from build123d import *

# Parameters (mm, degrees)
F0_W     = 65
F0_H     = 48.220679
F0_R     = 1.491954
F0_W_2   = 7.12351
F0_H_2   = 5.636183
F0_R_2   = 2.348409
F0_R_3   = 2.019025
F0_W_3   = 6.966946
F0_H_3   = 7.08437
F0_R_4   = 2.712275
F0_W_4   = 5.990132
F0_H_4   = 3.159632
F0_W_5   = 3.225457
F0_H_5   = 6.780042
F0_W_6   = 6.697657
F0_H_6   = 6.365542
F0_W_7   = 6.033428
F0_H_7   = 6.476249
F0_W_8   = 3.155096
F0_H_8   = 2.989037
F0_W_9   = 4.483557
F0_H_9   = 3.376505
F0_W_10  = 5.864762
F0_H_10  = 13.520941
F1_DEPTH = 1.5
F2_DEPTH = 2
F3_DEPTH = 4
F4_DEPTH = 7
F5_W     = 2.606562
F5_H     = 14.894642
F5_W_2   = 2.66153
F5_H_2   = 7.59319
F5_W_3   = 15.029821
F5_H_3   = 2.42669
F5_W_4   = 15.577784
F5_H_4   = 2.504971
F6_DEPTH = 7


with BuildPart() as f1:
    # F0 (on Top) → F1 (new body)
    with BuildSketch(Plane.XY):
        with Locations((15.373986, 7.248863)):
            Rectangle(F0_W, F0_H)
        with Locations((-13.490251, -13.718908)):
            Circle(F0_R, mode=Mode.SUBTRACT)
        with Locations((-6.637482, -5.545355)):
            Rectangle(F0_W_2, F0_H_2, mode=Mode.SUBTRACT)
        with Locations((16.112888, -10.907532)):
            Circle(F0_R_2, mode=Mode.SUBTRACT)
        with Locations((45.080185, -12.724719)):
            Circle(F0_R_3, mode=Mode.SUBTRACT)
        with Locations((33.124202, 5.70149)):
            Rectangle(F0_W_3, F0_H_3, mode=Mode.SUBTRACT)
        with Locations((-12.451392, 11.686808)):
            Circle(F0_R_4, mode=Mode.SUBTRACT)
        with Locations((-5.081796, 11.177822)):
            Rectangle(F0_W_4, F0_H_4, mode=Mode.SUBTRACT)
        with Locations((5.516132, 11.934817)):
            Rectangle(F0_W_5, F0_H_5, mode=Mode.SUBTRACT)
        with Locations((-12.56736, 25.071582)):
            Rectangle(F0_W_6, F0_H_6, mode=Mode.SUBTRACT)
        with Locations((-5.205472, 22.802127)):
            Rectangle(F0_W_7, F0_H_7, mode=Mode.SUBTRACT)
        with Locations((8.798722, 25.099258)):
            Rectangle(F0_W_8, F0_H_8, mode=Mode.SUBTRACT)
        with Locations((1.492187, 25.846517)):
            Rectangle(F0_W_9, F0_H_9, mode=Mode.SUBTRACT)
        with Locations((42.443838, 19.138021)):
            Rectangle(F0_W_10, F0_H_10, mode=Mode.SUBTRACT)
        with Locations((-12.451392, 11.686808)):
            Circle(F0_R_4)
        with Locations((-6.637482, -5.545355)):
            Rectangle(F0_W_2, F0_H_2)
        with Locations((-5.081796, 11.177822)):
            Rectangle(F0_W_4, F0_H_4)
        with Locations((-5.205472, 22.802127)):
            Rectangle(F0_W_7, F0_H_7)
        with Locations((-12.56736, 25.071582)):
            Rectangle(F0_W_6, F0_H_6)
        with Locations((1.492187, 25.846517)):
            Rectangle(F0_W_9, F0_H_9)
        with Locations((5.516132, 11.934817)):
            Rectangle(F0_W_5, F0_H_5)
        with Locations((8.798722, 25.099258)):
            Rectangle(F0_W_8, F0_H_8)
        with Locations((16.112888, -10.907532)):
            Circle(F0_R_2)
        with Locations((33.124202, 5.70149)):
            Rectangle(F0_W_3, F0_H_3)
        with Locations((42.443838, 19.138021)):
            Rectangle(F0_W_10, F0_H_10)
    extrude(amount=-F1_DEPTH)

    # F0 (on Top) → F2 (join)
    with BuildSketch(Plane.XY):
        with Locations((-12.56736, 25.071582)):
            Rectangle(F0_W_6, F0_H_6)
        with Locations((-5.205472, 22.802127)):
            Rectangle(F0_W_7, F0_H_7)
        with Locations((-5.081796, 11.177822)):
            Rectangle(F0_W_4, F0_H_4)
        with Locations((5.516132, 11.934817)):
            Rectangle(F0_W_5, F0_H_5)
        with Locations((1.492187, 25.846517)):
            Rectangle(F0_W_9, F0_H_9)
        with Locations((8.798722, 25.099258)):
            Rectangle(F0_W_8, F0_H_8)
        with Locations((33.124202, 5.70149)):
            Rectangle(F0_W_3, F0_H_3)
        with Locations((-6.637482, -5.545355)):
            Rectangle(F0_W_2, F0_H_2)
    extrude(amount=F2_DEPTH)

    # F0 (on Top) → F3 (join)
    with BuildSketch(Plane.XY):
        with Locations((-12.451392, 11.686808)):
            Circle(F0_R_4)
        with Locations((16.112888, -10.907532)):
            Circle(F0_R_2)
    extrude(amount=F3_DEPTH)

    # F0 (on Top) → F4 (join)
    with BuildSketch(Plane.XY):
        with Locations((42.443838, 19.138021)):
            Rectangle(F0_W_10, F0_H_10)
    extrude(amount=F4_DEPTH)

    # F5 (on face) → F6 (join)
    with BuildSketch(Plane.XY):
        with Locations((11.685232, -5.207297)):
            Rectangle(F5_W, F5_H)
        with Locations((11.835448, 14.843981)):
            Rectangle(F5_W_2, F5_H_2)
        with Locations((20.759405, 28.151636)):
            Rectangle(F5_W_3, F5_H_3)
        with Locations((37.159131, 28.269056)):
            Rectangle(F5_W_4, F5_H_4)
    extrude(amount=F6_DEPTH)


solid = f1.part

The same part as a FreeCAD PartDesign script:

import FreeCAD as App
import Part
import Sketcher

V = App.Vector

doc = App.newDocument("Part")
params = doc.addObject("Spreadsheet::Sheet", "Params")
for row, (alias, value) in enumerate([
    ("sketch1_width", "65 mm"),
    ("pad1_length", "1.5 mm"),
    ("pad2_length", "2 mm"),
    ("pad3_length", "4 mm"),
    ("pad4_length", "7 mm"),
    ("pad5_length", "7 mm"),
], start=1):
    params.set(f"A{row}", alias)
    params.set(f"B{row}", "=" + value)
    params.setAlias(f"B{row}", alias)

body = doc.addObject("PartDesign::Body", "Body")

# Sketch on XY plane
sketch1 = doc.addObject("Sketcher::SketchObject", "Sketch")
body.addObject(sketch1)
sketch1.AttachmentSupport = (doc.XY_Plane, [""])
sketch1.MapMode = "FlatFace"
sketch1.addGeometry([
    Part.LineSegment(V(-17.1, 31.4, 0), V(-17.1, -16.9, 0)),  # 0
    Part.LineSegment(V(-17.1, -16.9, 0), V(47.9, -16.9, 0)),  # 1
    Part.LineSegment(V(47.9, -16.9, 0), V(47.9, 31.4, 0)),  # 2
    Part.LineSegment(V(47.9, 31.4, 0), V(-17.1, 31.4, 0)),  # 3
    Part.Circle(V(-13.5, -13.7, 0), V(0, 0, 1), 1.5),  # 4
    Part.Circle(V(45.1, -12.7, 0), V(0, 0, 1), 2),  # 5
], False)
sketch1.addConstraint([
    Sketcher.Constraint("Coincident", 0, 2, 1, 1),
    Sketcher.Constraint("Coincident", 1, 2, 2, 1),
    Sketcher.Constraint("Coincident", 2, 2, 3, 1),
    Sketcher.Constraint("Coincident", 3, 2, 0, 1),
    Sketcher.Constraint("Vertical", 0),
    Sketcher.Constraint("Horizontal", 1),
    Sketcher.Constraint("Vertical", 2),
    Sketcher.Constraint("Horizontal", 3),
    Sketcher.Constraint("DistanceX", 1, 1, 1, 2, 65.0),
    Sketcher.Constraint("Diameter", 4, 2.983908),
    Sketcher.Constraint("Diameter", 5, 4.03805),
    Sketcher.Constraint("DistanceY", 0, 2, 0, 1, 48.220679),
    Sketcher.Constraint("DistanceX", 0, 2, 5, 3, 62.206199),
    Sketcher.Constraint("DistanceX", 4, 3, -1, 1, 13.490251),
    Sketcher.Constraint("DistanceY", 4, 3, -1, 1, 13.718908),
    Sketcher.Constraint("DistanceY", 5, 3, -1, 1, 12.724719),
    Sketcher.Constraint("DistanceY", 0, 2, 4, 3, 3.142568),
    Sketcher.Constraint("DistanceX", -1, 1, 5, 3, 45.080185),
])
sketch1.setExpression("Constraints[8]", "Params.sketch1_width")
pad1 = doc.addObject("PartDesign::Pad", "Pad")
body.addObject(pad1)
pad1.Profile = sketch1
pad1.setExpression("Length", "Params.pad1_length")
pad1.Reversed = True

# Sketch on XY plane
sketch2 = doc.addObject("Sketcher::SketchObject", "Sketch001")
body.addObject(sketch2)
sketch2.AttachmentSupport = (doc.XY_Plane, [""])
sketch2.MapMode = "FlatFace"
sketch2.addGeometry([
    Part.LineSegment(V(-15.9, 28.3, 0), V(-15.9, 21.9, 0)),  # 0
    Part.LineSegment(V(-15.9, 21.9, 0), V(-9.2, 21.9, 0)),  # 1
    Part.LineSegment(V(-9.2, 21.9, 0), V(-9.2, 28.3, 0)),  # 2
    Part.LineSegment(V(-9.2, 28.3, 0), V(-15.9, 28.3, 0)),  # 3
    Part.LineSegment(V(-8.2, 26, 0), V(-8.2, 19.6, 0)),  # 4
    Part.LineSegment(V(-8.2, 19.6, 0), V(-2.2, 19.6, 0)),  # 5
    Part.LineSegment(V(-2.2, 19.6, 0), V(-2.2, 26, 0)),  # 6
    Part.LineSegment(V(-2.2, 26, 0), V(-8.2, 26, 0)),  # 7
    Part.LineSegment(V(-8.1, 12.8, 0), V(-8.1, 9.6, 0)),  # 8
    Part.LineSegment(V(-8.1, 9.6, 0), V(-2.1, 9.6, 0)),  # 9
    Part.LineSegment(V(-2.1, 9.6, 0), V(-2.1, 12.8, 0)),  # 10
    Part.LineSegment(V(-2.1, 12.8, 0), V(-8.1, 12.8, 0)),  # 11
    Part.LineSegment(V(3.9, 15.3, 0), V(3.9, 8.5, 0)),  # 12
    Part.LineSegment(V(3.9, 8.5, 0), V(7.1, 8.5, 0)),  # 13
    Part.LineSegment(V(7.1, 8.5, 0), V(7.1, 15.3, 0)),  # 14
    Part.LineSegment(V(7.1, 15.3, 0), V(3.9, 15.3, 0)),  # 15
    Part.LineSegment(V(-0.7, 27.5, 0), V(-0.7, 24.2, 0)),  # 16
    Part.LineSegment(V(-0.7, 24.2, 0), V(3.7, 24.2, 0)),  # 17
    Part.LineSegment(V(3.7, 24.2, 0), V(3.7, 27.5, 0)),  # 18
    Part.LineSegment(V(3.7, 27.5, 0), V(-0.7, 27.5, 0)),  # 19
    Part.LineSegment(V(7.2, 26.6, 0), V(7.2, 23.6, 0)),  # 20
    Part.LineSegment(V(7.2, 23.6, 0), V(10.4, 23.6, 0)),  # 21
    Part.LineSegment(V(10.4, 23.6, 0), V(10.4, 26.6, 0)),  # 22
    Part.LineSegment(V(10.4, 26.6, 0), V(7.2, 26.6, 0)),  # 23
    Part.LineSegment(V(29.6, 9.2, 0), V(29.6, 2.2, 0)),  # 24
    Part.LineSegment(V(29.6, 2.2, 0), V(36.6, 2.2, 0)),  # 25
    Part.LineSegment(V(36.6, 2.2, 0), V(36.6, 9.2, 0)),  # 26
    Part.LineSegment(V(36.6, 9.2, 0), V(29.6, 9.2, 0)),  # 27
    Part.LineSegment(V(-10.2, -2.7, 0), V(-10.2, -8.4, 0)),  # 28
    Part.LineSegment(V(-10.2, -8.4, 0), V(-3.1, -8.4, 0)),  # 29
    Part.LineSegment(V(-3.1, -8.4, 0), V(-3.1, -2.7, 0)),  # 30
    Part.LineSegment(V(-3.1, -2.7, 0), V(-10.2, -2.7, 0)),  # 31
], False)
sketch2.addConstraint([
    Sketcher.Constraint("Coincident", 0, 2, 1, 1),
    Sketcher.Constraint("Coincident", 1, 2, 2, 1),
    Sketcher.Constraint("Coincident", 2, 2, 3, 1),
    Sketcher.Constraint("Coincident", 3, 2, 0, 1),
    Sketcher.Constraint("Coincident", 4, 2, 5, 1),
    Sketcher.Constraint("Coincident", 5, 2, 6, 1),
    Sketcher.Constraint("Coincident", 6, 2, 7, 1),
    Sketcher.Constraint("Coincident", 7, 2, 4, 1),
    Sketcher.Constraint("Coincident", 8, 2, 9, 1),
    Sketcher.Constraint("Coincident", 9, 2, 10, 1),
    Sketcher.Constraint("Coincident", 10, 2, 11, 1),
    Sketcher.Constraint("Coincident", 11, 2, 8, 1),
    Sketcher.Constraint("Coincident", 12, 2, 13, 1),
    Sketcher.Constraint("Coincident", 13, 2, 14, 1),
    Sketcher.Constraint("Coincident", 14, 2, 15, 1),
    Sketcher.Constraint("Coincident", 15, 2, 12, 1),
    Sketcher.Constraint("Coincident", 16, 2, 17, 1),
    Sketcher.Constraint("Coincident", 17, 2, 18, 1),
    Sketcher.Constraint("Coincident", 18, 2, 19, 1),
    Sketcher.Constraint("Coincident", 19, 2, 16, 1),
    Sketcher.Constraint("Coincident", 20, 2, 21, 1),
    Sketcher.Constraint("Coincident", 21, 2, 22, 1),
    Sketcher.Constraint("Coincident", 22, 2, 23, 1),
    Sketcher.Constraint("Coincident", 23, 2, 20, 1),
    Sketcher.Constraint("Coincident", 24, 2, 25, 1),
    Sketcher.Constraint("Coincident", 25, 2, 26, 1),
    Sketcher.Constraint("Coincident", 26, 2, 27, 1),
    Sketcher.Constraint("Coincident", 27, 2, 24, 1),
    Sketcher.Constraint("Coincident", 28, 2, 29, 1),
    Sketcher.Constraint("Coincident", 29, 2, 30, 1),
    Sketcher.Constraint("Coincident", 30, 2, 31, 1),
    Sketcher.Constraint("Coincident", 31, 2, 28, 1),
    Sketcher.Constraint("Vertical", 0),
    Sketcher.Constraint("Horizontal", 1),
    Sketcher.Constraint("Vertical", 2),
    Sketcher.Constraint("Horizontal", 3),
    Sketcher.Constraint("Vertical", 4),
    Sketcher.Constraint("Horizontal", 5),
    Sketcher.Constraint("Vertical", 6),
    Sketcher.Constraint("Horizontal", 7),
    Sketcher.Constraint("Vertical", 8),
    Sketcher.Constraint("Horizontal", 9),
    Sketcher.Constraint("Vertical", 10),
    Sketcher.Constraint("Horizontal", 11),
    Sketcher.Constraint("Vertical", 12),
    Sketcher.Constraint("Horizontal", 13),
    Sketcher.Constraint("Vertical", 14),
    Sketcher.Constraint("Horizontal", 15),
    Sketcher.Constraint("Vertical", 16),
    Sketcher.Constraint("Horizontal", 17),
    Sketcher.Constraint("Vertical", 18),
    Sketcher.Constraint("Horizontal", 19),
    Sketcher.Constraint("Vertical", 20),
    Sketcher.Constraint("Horizontal", 21),
    Sketcher.Constraint("Vertical", 22),
    Sketcher.Constraint("Horizontal", 23),
    Sketcher.Constraint("Vertical", 24),
    Sketcher.Constraint("Horizontal", 25),
    Sketcher.Constraint("Vertical", 26),
    Sketcher.Constraint("Horizontal", 27),
    Sketcher.Constraint("Vertical", 28),
    Sketcher.Constraint("Horizontal", 29),
    Sketcher.Constraint("Vertical", 30),
    Sketcher.Constraint("Horizontal", 31),
    Sketcher.Constraint("DistanceX", 5, 1, 5, 2, 6.033428),
    Sketcher.Constraint("DistanceX", 29, 1, 29, 2, 7.12351),
    Sketcher.Constraint("DistanceY", 0, 2, 0, 1, 6.365542),
    Sketcher.Constraint("DistanceY", 4, 2, 4, 1, 6.476249),
    Sketcher.Constraint("DistanceY", 24, 2, 24, 1, 7.08437),
    Sketcher.Constraint("DistanceY", 6, 2, 2, 2, 2.214101),
    Sketcher.Constraint("DistanceX", 1, 2, 9, 2, 7.131801),
    Sketcher.Constraint("DistanceY", 10, 2, 14, 2, 2.5672),
    Sketcher.Constraint("DistanceY", 14, 2, 20, 2, 8.279902),
    Sketcher.Constraint("DistanceX", 1, 1, 1, 2, 6.697657),
    Sketcher.Constraint("DistanceX", 9, 1, 9, 2, 5.990132),
    Sketcher.Constraint("DistanceX", 13, 1, 13, 2, 3.225457),
    Sketcher.Constraint("DistanceX", 17, 1, 17, 2, 4.483557),
    Sketcher.Constraint("DistanceX", 21, 1, 21, 2, 3.155096),
    Sketcher.Constraint("DistanceX", 25, 1, 25, 2, 6.966946),
    Sketcher.Constraint("DistanceY", 8, 2, 8, 1, 3.159632),
    Sketcher.Constraint("DistanceY", 12, 2, 12, 1, 6.780042),
    Sketcher.Constraint("DistanceY", 16, 2, 16, 1, 3.376505),
    Sketcher.Constraint("DistanceY", 20, 2, 20, 1, 2.989037),
    Sketcher.Constraint("DistanceY", 28, 2, 28, 1, 5.636183),
    Sketcher.Constraint("DistanceX", 0, 2, -1, 1, 15.916189),
    Sketcher.Constraint("DistanceY", -1, 1, 0, 2, 21.888811),
    Sketcher.Constraint("DistanceX", 5, 2, -1, 1, 2.188758),
    Sketcher.Constraint("DistanceX", -1, 1, 13, 2, 7.128861),
    Sketcher.Constraint("DistanceX", 16, 2, -1, 1, 0.749591),
    Sketcher.Constraint("DistanceY", -1, 1, 18, 2, 27.534769),
    Sketcher.Constraint("DistanceY", -1, 1, 20, 2, 23.60474),
    Sketcher.Constraint("DistanceX", -1, 1, 21, 2, 10.37627),
    Sketcher.Constraint("DistanceX", -1, 1, 24, 2, 29.640729),
    Sketcher.Constraint("DistanceY", 24, 2, 13, 2, 6.385491),
    Sketcher.Constraint("DistanceX", 28, 2, 12, 2, 14.10264),
    Sketcher.Constraint("DistanceY", 30, 2, 9, 2, 12.325269),
])
pad2 = doc.addObject("PartDesign::Pad", "Pad001")
body.addObject(pad2)
pad2.Profile = sketch2
pad2.setExpression("Length", "Params.pad2_length")

# Sketch on XY plane
sketch3 = doc.addObject("Sketcher::SketchObject", "Sketch002")
body.addObject(sketch3)
sketch3.AttachmentSupport = (doc.XY_Plane, [""])
sketch3.MapMode = "FlatFace"
sketch3.addGeometry([
    Part.Circle(V(-12.5, 11.7, 0), V(0, 0, 1), 2.7),
    Part.Circle(V(16.1, -10.9, 0), V(0, 0, 1), 2.3),
], False)
sketch3.addConstraint([
    Sketcher.Constraint("Diameter", 0, 5.42455),
    Sketcher.Constraint("Diameter", 1, 4.696818),
    Sketcher.Constraint("DistanceX", -1, 1, 1, 3, 16.112888),
    Sketcher.Constraint("DistanceX", 0, 3, 1, 3, 28.56428),
    Sketcher.Constraint("DistanceY", 1, 3, 0, 3, 22.59434),
    Sketcher.Constraint("DistanceY", -1, 1, 0, 3, 11.686808),
])
pad3 = doc.addObject("PartDesign::Pad", "Pad002")
body.addObject(pad3)
pad3.Profile = sketch3
pad3.setExpression("Length", "Params.pad3_length")

# Sketch on XY plane
sketch4 = doc.addObject("Sketcher::SketchObject", "Sketch003")
body.addObject(sketch4)
sketch4.AttachmentSupport = (doc.XY_Plane, [""])
sketch4.MapMode = "FlatFace"
sketch4.addGeometry([
    Part.LineSegment(V(40, 26, 0), V(40, 12, 0)),
    Part.LineSegment(V(40, 12, 0), V(45, 12, 0)),
    Part.LineSegment(V(45, 12, 0), V(45, 26, 0)),
    Part.LineSegment(V(45, 26, 0), V(40, 26, 0)),
], False)
sketch4.addConstraint([
    Sketcher.Constraint("Coincident", 0, 2, 1, 1),
    Sketcher.Constraint("Coincident", 1, 2, 2, 1),
    Sketcher.Constraint("Coincident", 2, 2, 3, 1),
    Sketcher.Constraint("Coincident", 3, 2, 0, 1),
    Sketcher.Constraint("Vertical", 0),
    Sketcher.Constraint("Horizontal", 1),
    Sketcher.Constraint("Vertical", 2),
    Sketcher.Constraint("Horizontal", 3),
    Sketcher.Constraint("DistanceX", 1, 1, 1, 2, 5.864762),
    Sketcher.Constraint("DistanceY", 0, 2, 0, 1, 13.520941),
    Sketcher.Constraint("DistanceY", -1, 1, 0, 2, 12.37755),
    Sketcher.Constraint("DistanceX", -1, 1, 1, 2, 45.376219),
])
pad4 = doc.addObject("PartDesign::Pad", "Pad003")
body.addObject(pad4)
pad4.Profile = sketch4
pad4.setExpression("Length", "Params.pad4_length")

# Sketch on XY plane
sketch5 = doc.addObject("Sketcher::SketchObject", "Sketch004")
body.addObject(sketch5)
sketch5.AttachmentSupport = (doc.XY_Plane, [""])
sketch5.MapMode = "FlatFace"
sketch5.addGeometry([
    Part.LineSegment(V(10.4, 2.2, 0), V(10.4, -12.7, 0)),  # 0
    Part.LineSegment(V(10.4, -12.7, 0), V(13, -12.7, 0)),  # 1
    Part.LineSegment(V(13, -12.7, 0), V(13, 2.2, 0)),  # 2
    Part.LineSegment(V(13, 2.2, 0), V(10.4, 2.2, 0)),  # 3
    Part.LineSegment(V(10.5, 18.6, 0), V(10.5, 11, 0)),  # 4
    Part.LineSegment(V(10.5, 11, 0), V(13.2, 11, 0)),  # 5
    Part.LineSegment(V(13.2, 11, 0), V(13.2, 18.6, 0)),  # 6
    Part.LineSegment(V(13.2, 18.6, 0), V(10.5, 18.6, 0)),  # 7
    Part.LineSegment(V(13.2, 29.4, 0), V(13.2, 26.9, 0)),  # 8
    Part.LineSegment(V(13.2, 26.9, 0), V(28.3, 26.9, 0)),  # 9
    Part.LineSegment(V(28.3, 26.9, 0), V(28.3, 29.4, 0)),  # 10
    Part.LineSegment(V(28.3, 29.4, 0), V(13.2, 29.4, 0)),  # 11
    Part.LineSegment(V(29.4, 29.5, 0), V(29.4, 27, 0)),  # 12
    Part.LineSegment(V(29.4, 27, 0), V(44.9, 27, 0)),  # 13
    Part.LineSegment(V(44.9, 27, 0), V(44.9, 29.5, 0)),  # 14
    Part.LineSegment(V(44.9, 29.5, 0), V(29.4, 29.5, 0)),  # 15
], False)
sketch5.addConstraint([
    Sketcher.Constraint("Coincident", 0, 2, 1, 1),
    Sketcher.Constraint("Coincident", 1, 2, 2, 1),
    Sketcher.Constraint("Coincident", 2, 2, 3, 1),
    Sketcher.Constraint("Coincident", 3, 2, 0, 1),
    Sketcher.Constraint("Coincident", 4, 2, 5, 1),
    Sketcher.Constraint("Coincident", 5, 2, 6, 1),
    Sketcher.Constraint("Coincident", 6, 2, 7, 1),
    Sketcher.Constraint("Coincident", 7, 2, 4, 1),
    Sketcher.Constraint("Coincident", 8, 2, 9, 1),
    Sketcher.Constraint("Coincident", 9, 2, 10, 1),
    Sketcher.Constraint("Coincident", 10, 2, 11, 1),
    Sketcher.Constraint("Coincident", 11, 2, 8, 1),
    Sketcher.Constraint("Coincident", 12, 2, 13, 1),
    Sketcher.Constraint("Coincident", 13, 2, 14, 1),
    Sketcher.Constraint("Coincident", 14, 2, 15, 1),
    Sketcher.Constraint("Coincident", 15, 2, 12, 1),
    Sketcher.Constraint("Vertical", 0),
    Sketcher.Constraint("Horizontal", 1),
    Sketcher.Constraint("Vertical", 2),
    Sketcher.Constraint("Horizontal", 3),
    Sketcher.Constraint("Vertical", 4),
    Sketcher.Constraint("Horizontal", 5),
    Sketcher.Constraint("Vertical", 6),
    Sketcher.Constraint("Horizontal", 7),
    Sketcher.Constraint("Vertical", 8),
    Sketcher.Constraint("Horizontal", 9),
    Sketcher.Constraint("Vertical", 10),
    Sketcher.Constraint("Horizontal", 11),
    Sketcher.Constraint("Vertical", 12),
    Sketcher.Constraint("Horizontal", 13),
    Sketcher.Constraint("Vertical", 14),
    Sketcher.Constraint("Horizontal", 15),
    Sketcher.Constraint("DistanceX", 1, 1, 1, 2, 2.606562),
    Sketcher.Constraint("DistanceX", 5, 1, 5, 2, 2.66153),
    Sketcher.Constraint("DistanceX", 9, 1, 9, 2, 15.029821),
    Sketcher.Constraint("DistanceY", 0, 2, 0, 1, 14.894642),
    Sketcher.Constraint("DistanceY", 4, 2, 4, 1, 7.59319),
    Sketcher.Constraint("DistanceY", 8, 2, 8, 1, 2.42669),
    Sketcher.Constraint("DistanceY", 12, 2, 12, 1, 2.504971),
    Sketcher.Constraint("DistanceX", 2, 2, 5, 2, 0.1777),
    Sketcher.Constraint("DistanceX", 13, 1, 13, 2, 15.577784),
    Sketcher.Constraint("DistanceX", -1, 1, 0, 2, 10.381951),
    Sketcher.Constraint("DistanceY", -1, 1, 8, 2, 26.938291),
    Sketcher.Constraint("DistanceX", -1, 1, 12, 2, 29.370239),
    Sketcher.Constraint("DistanceY", -1, 1, 12, 2, 27.016571),
    Sketcher.Constraint("DistanceY", 2, 2, 6, 2, 16.400552),
    Sketcher.Constraint("DistanceX", 6, 2, 8, 2, 0.078281),
    Sketcher.Constraint("DistanceY", 0, 2, -1, 1, 12.654618),
])
pad5 = doc.addObject("PartDesign::Pad", "Pad004")
body.addObject(pad5)
pad5.Profile = sketch5
pad5.setExpression("Length", "Params.pad5_length")

doc.recompute()
